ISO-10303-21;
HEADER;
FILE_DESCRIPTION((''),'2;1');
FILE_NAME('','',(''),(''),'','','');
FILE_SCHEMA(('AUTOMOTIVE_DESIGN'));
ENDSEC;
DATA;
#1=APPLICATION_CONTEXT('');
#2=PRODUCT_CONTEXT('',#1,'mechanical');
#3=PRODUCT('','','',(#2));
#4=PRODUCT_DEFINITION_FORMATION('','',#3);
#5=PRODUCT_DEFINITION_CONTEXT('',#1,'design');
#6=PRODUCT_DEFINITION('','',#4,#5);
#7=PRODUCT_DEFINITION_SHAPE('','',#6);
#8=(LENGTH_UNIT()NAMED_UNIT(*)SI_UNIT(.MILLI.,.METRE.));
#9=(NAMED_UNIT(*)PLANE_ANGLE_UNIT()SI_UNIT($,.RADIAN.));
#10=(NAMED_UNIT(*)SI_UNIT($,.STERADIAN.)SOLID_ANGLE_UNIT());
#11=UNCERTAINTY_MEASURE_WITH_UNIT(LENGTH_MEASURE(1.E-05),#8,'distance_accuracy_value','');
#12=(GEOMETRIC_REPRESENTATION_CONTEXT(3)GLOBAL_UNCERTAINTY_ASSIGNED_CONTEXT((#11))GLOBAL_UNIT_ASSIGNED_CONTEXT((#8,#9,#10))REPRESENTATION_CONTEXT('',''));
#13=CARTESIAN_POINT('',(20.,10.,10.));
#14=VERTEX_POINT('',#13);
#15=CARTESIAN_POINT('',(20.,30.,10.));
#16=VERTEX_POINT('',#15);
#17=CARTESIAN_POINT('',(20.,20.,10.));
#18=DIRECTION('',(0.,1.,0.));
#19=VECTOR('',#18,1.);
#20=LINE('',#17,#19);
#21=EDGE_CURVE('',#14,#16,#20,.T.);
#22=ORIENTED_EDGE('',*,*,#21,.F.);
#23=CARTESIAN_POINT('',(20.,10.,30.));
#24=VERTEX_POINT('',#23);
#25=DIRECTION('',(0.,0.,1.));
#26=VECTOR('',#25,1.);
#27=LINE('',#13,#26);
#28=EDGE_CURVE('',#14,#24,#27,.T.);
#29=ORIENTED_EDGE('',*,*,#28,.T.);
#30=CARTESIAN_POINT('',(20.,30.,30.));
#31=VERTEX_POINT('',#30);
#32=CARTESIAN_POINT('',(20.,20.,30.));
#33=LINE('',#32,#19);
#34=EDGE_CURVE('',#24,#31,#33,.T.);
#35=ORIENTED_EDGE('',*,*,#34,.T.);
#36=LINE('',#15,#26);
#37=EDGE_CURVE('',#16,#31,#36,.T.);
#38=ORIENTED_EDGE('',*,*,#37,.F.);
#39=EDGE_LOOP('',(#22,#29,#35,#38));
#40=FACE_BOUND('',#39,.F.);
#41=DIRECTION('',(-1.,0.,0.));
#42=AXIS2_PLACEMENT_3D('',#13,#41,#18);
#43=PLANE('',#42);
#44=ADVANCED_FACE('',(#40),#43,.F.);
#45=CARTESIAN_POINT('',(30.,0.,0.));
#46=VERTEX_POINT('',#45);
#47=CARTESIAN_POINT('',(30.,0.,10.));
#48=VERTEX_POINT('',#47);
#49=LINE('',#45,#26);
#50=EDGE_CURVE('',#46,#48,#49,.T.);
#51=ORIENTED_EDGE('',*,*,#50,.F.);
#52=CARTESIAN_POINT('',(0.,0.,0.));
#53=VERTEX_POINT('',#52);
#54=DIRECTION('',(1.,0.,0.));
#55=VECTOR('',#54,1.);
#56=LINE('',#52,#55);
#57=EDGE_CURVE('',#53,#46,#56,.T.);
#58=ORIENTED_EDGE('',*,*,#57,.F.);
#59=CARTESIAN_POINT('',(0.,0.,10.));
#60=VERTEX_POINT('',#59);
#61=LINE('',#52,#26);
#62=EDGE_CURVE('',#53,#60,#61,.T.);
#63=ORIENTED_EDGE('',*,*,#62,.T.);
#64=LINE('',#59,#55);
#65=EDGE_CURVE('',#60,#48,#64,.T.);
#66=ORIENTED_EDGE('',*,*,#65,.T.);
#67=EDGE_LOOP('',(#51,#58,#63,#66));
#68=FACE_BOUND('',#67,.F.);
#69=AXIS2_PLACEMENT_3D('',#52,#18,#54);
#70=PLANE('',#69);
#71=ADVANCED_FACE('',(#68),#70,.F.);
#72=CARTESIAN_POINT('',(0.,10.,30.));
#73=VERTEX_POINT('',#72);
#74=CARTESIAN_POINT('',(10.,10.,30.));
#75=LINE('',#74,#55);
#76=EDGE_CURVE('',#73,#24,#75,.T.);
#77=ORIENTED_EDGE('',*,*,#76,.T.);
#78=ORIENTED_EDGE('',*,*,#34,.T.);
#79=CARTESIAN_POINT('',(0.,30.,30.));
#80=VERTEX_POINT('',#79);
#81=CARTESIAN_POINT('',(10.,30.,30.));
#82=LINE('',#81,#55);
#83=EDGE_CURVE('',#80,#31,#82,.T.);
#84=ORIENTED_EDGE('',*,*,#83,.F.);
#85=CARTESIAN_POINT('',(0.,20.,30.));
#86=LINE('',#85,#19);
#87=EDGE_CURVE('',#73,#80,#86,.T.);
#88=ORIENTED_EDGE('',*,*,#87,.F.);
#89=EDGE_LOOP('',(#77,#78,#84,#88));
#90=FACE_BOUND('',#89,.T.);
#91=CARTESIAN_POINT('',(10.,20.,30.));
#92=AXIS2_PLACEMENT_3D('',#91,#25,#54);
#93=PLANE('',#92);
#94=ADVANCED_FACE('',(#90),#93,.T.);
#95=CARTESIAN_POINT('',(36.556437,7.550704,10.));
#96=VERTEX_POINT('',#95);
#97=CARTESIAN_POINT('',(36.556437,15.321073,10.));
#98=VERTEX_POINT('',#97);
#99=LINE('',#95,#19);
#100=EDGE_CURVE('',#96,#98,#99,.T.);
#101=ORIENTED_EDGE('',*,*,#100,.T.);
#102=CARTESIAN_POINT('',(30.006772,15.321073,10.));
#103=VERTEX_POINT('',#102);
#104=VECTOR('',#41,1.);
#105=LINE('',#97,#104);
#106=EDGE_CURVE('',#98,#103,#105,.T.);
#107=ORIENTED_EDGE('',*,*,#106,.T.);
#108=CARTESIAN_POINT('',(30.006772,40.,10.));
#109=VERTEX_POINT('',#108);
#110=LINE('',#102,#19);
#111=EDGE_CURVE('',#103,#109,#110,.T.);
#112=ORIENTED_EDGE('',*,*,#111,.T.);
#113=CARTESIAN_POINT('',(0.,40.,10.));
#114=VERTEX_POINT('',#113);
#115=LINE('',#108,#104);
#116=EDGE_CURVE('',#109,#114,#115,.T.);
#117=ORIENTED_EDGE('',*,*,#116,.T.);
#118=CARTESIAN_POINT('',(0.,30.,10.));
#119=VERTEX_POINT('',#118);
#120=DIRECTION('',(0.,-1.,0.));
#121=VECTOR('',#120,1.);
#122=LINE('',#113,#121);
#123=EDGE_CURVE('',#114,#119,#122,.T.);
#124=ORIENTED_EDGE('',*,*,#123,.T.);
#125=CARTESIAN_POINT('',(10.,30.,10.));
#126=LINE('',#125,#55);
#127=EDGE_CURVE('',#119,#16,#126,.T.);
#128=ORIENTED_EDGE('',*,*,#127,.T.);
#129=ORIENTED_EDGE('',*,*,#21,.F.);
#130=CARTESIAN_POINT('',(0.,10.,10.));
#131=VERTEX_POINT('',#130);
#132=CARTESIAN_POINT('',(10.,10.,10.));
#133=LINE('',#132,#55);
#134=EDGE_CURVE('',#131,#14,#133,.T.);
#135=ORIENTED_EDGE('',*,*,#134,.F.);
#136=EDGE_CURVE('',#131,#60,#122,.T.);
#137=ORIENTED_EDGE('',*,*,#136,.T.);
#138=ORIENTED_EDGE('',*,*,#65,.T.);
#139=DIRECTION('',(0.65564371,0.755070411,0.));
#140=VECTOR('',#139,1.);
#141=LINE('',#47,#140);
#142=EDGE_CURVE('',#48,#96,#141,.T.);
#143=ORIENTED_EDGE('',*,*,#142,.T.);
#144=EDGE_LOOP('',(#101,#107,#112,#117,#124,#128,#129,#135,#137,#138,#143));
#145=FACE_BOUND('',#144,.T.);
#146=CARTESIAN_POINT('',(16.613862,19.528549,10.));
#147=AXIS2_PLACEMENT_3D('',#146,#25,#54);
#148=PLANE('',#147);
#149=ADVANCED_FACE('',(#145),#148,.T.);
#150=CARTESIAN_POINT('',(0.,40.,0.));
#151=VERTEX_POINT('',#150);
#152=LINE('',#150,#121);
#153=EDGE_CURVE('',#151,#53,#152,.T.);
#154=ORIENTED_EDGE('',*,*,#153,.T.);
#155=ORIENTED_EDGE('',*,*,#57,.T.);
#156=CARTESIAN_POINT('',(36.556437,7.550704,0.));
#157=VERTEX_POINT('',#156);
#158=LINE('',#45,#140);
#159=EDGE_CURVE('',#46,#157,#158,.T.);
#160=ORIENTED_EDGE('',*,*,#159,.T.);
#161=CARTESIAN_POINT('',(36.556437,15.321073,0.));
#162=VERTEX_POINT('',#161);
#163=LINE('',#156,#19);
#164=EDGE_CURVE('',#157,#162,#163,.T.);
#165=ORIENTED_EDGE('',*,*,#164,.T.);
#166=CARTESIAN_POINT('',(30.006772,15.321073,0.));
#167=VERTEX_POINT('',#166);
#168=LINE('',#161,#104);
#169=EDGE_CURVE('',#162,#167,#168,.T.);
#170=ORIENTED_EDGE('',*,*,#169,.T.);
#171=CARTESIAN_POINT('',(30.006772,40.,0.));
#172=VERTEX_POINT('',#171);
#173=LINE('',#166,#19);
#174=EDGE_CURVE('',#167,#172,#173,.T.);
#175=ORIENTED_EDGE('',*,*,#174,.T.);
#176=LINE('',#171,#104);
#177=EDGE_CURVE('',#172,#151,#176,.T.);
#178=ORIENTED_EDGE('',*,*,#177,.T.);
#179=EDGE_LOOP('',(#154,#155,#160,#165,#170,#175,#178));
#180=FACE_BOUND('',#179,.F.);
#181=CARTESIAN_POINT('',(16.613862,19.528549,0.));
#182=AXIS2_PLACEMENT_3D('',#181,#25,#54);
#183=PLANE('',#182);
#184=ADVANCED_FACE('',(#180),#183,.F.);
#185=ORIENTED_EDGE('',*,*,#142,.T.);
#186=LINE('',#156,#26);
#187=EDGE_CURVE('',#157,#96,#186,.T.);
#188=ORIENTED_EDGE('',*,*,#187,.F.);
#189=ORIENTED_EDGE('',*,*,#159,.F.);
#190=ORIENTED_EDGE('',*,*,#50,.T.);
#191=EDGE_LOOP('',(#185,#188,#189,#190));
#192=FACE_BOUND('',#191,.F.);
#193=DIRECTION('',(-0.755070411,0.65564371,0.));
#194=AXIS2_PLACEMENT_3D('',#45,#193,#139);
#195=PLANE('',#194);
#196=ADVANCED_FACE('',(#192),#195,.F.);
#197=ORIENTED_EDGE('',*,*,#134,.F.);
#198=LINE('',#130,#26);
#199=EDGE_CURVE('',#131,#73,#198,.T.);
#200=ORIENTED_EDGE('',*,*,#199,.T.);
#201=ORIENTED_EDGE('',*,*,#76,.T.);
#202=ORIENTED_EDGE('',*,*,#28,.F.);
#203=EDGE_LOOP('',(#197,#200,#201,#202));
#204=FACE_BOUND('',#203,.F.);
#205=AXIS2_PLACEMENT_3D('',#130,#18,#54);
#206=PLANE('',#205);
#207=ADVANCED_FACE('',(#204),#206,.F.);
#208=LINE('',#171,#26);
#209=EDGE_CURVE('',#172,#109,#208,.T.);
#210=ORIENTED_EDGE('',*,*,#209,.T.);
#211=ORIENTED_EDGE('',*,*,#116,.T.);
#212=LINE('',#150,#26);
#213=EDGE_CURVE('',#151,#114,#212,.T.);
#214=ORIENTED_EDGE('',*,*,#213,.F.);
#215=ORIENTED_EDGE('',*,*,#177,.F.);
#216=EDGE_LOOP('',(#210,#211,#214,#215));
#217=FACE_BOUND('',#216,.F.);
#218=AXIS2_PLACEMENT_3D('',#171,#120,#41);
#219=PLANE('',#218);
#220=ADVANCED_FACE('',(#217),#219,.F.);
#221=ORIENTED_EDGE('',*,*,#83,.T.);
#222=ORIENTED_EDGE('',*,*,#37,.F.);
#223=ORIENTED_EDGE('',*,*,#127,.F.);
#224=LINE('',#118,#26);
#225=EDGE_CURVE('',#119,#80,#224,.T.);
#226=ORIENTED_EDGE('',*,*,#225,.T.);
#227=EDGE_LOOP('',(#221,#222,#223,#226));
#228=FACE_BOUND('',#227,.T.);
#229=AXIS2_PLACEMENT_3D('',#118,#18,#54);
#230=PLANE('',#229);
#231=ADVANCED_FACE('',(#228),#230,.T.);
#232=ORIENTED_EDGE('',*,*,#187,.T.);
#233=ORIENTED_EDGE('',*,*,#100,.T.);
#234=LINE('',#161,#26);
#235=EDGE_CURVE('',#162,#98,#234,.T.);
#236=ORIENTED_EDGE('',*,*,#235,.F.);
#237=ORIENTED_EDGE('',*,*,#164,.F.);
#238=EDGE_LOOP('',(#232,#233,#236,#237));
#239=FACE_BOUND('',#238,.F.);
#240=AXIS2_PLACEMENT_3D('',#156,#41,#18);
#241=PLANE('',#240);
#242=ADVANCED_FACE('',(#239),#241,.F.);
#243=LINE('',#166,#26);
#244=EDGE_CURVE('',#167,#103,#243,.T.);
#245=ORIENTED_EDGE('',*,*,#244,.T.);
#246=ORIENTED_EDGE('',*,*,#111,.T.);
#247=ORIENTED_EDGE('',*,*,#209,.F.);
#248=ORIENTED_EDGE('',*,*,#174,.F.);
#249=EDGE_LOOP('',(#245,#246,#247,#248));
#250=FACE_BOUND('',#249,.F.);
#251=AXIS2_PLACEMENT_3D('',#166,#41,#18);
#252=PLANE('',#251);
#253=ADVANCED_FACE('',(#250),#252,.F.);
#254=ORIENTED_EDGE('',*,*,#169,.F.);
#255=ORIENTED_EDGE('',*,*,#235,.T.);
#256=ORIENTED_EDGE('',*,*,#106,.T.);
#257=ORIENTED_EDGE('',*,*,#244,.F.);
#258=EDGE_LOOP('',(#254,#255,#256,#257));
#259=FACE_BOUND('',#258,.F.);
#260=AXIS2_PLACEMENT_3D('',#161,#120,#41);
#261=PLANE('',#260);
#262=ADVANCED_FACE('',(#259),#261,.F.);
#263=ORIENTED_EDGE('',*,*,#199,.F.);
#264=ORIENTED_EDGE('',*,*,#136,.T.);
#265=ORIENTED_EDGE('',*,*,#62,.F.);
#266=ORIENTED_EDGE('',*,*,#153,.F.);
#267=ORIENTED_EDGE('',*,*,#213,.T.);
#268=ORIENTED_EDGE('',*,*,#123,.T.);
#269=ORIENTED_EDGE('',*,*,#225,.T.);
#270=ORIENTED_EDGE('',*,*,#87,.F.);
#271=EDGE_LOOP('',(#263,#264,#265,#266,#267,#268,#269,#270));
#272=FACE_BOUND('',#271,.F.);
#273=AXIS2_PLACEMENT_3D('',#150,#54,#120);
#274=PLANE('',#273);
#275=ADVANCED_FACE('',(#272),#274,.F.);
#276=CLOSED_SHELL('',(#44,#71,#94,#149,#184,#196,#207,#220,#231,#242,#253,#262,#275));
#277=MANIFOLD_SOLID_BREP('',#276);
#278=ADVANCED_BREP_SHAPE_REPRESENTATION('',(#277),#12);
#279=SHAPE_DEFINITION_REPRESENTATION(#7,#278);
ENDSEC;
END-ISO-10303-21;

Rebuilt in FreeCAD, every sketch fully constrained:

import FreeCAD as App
import Part
import Sketcher
from FreeCAD import Vector
Q = App.Units.Quantity

doc = App.newDocument("Part")
body = doc.addObject("PartDesign::Body", "Body")

# Sketch on XY plane
sketch1 = body.newObject("Sketcher::SketchObject", "Sketch")
sketch1.AttachmentSupport = (doc.getObject("XY_Plane"), [""])
sketch1.MapMode = "FlatFace"
sketch1.addGeometry(Part.LineSegment(Vector(0, 40, 0), Vector(0, 0, 0)), False)
sketch1.addGeometry(Part.LineSegment(Vector(0, 0, 0), Vector(30, 0, 0)), False)
sketch1.addGeometry(Part.LineSegment(Vector(30, 0, 0), Vector(37, 8, 0)), False)
sketch1.addGeometry(Part.LineSegment(Vector(37, 8, 0), Vector(37, 15, 0)), False)
sketch1.addGeometry(Part.LineSegment(Vector(37, 15, 0), Vector(30, 15, 0)), False)
sketch1.addGeometry(Part.LineSegment(Vector(30, 15, 0), Vector(30, 40, 0)), False)
sketch1.addGeometry(Part.LineSegment(Vector(30, 40, 0), Vector(0, 40, 0)), False)
sketch1.addConstraint(Sketcher.Constraint("Coincident", 0, 2, 1, 1))
sketch1.addConstraint(Sketcher.Constraint("Coincident", 1, 2, 2, 1))
sketch1.addConstraint(Sketcher.Constraint("Coincident", 2, 2, 3, 1))
sketch1.addConstraint(Sketcher.Constraint("Coincident", 3, 2, 4, 1))
sketch1.addConstraint(Sketcher.Constraint("Coincident", 4, 2, 5, 1))
sketch1.addConstraint(Sketcher.Constraint("Coincident", 5, 2, 6, 1))
sketch1.addConstraint(Sketcher.Constraint("Coincident", 6, 2, 0, 1))
sketch1.addConstraint(Sketcher.Constraint("Vertical", 0))
sketch1.addConstraint(Sketcher.Constraint("Horizontal", 1))
sketch1.addConstraint(Sketcher.Constraint("Vertical", 3))
sketch1.addConstraint(Sketcher.Constraint("Horizontal", 4))
sketch1.addConstraint(Sketcher.Constraint("Vertical", 5))
sketch1.addConstraint(Sketcher.Constraint("Horizontal", 6))
sketch1.addConstraint(Sketcher.Constraint("Coincident", 0, 2, -1, 1))
sketch1.addConstraint(Sketcher.Constraint("DistanceX", 1, 1, 1, 2, Q("30 mm")))
sketch1.addConstraint(Sketcher.Constraint("DistanceY", 0, 2, 0, 1, Q("40 mm")))
sketch1.addConstraint(Sketcher.Constraint("Distance", 2, Q("10 mm")))
sketch1.addConstraint(Sketcher.Constraint("DistanceY", 3, 1, 3, 2, Q("7.770369 mm")))
sketch1.addConstraint(Sketcher.Constraint("DistanceX", 4, 2, 4, 1, Q("6.549665 mm")))
sketch1.addConstraint(Sketcher.Constraint("DistanceX", 6, 2, 6, 1, Q("30.006772 mm")))
pad1 = body.newObject("PartDesign::Pad", "Pad")
pad1.Profile = sketch1
pad1.Length = 10

# Sketch on XY plane
sketch2 = body.newObject("Sketcher::SketchObject", "Sketch001")
sketch2.AttachmentSupport = (doc.getObject("XY_Plane"), [""])
sketch2.MapMode = "FlatFace"
sketch2.AttachmentOffset = App.Placement(Vector(0, 0, 10), App.Rotation())
sketch2.addGeometry(Part.LineSegment(Vector(0, 30, 0), Vector(0, 10, 0)), False)
sketch2.addGeometry(Part.LineSegment(Vector(0, 10, 0), Vector(20, 10, 0)), False)
sketch2.addGeometry(Part.LineSegment(Vector(20, 10, 0), Vector(20, 30, 0)), False)
sketch2.addGeometry(Part.LineSegment(Vector(20, 30, 0), Vector(0, 30, 0)), False)
sketch2.addConstraint(Sketcher.Constraint("Coincident", 0, 2, 1, 1))
sketch2.addConstraint(Sketcher.Constraint("Coincident", 1, 2, 2, 1))
sketch2.addConstraint(Sketcher.Constraint("Coincident", 2, 2, 3, 1))
sketch2.addConstraint(Sketcher.Constraint("Coincident", 3, 2, 0, 1))
sketch2.addConstraint(Sketcher.Constraint("Vertical", 0))
sketch2.addConstraint(Sketcher.Constraint("Horizontal", 1))
sketch2.addConstraint(Sketcher.Constraint("Vertical", 2))
sketch2.addConstraint(Sketcher.Constraint("Horizontal", 3))
sketch2.addConstraint(Sketcher.Constraint("PointOnObject", 0, 2, -2))
sketch2.addConstraint(Sketcher.Constraint("Equal", 3, 0))
sketch2.addConstraint(Sketcher.Constraint("DistanceX", 1, 1, 1, 2, Q("20 mm")))
sketch2.addConstraint(Sketcher.Constraint("DistanceY", -1, 1, 0, 2, Q("10 mm")))
pad2 = body.newObject("PartDesign::Pad", "Pad001")
pad2.Profile = sketch2
pad2.Length = 20

doc.recompute()
